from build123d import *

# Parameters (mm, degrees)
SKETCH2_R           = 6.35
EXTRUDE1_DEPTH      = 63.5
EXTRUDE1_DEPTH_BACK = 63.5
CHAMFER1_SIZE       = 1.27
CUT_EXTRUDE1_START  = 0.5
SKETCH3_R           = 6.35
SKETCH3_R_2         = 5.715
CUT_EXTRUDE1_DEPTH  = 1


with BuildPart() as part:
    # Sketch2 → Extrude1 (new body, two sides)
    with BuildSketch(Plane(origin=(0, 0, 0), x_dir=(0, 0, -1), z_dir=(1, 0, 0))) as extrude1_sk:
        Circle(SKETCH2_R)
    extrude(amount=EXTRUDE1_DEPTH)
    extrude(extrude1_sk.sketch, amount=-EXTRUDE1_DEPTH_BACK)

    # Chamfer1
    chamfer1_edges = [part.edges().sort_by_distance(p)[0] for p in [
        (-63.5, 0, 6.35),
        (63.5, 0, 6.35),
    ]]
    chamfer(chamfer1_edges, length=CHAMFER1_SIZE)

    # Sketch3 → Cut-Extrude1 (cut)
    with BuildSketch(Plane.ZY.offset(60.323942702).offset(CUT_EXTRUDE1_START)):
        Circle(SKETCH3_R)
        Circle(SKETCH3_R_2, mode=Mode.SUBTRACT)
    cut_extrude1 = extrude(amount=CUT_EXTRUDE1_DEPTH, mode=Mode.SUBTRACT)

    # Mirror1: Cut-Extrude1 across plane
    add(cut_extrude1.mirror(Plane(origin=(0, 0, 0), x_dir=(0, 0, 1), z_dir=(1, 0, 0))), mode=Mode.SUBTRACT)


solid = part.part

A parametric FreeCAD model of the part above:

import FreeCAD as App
import Part
import Sketcher

V = App.Vector
Q = App.Units.Quantity


def edges_at(feature, points):
    """Names of the edges that pass closest to the given points."""
    edges = feature.Shape.Edges
    near = lambda p: min(range(len(edges)), key=lambda i: edges[i].distToShape(Part.Vertex(*p))[0])
    return sorted({f"Edge{near(p) + 1}" for p in points})

doc = App.newDocument("Part")
params = doc.addObject("Spreadsheet::Sheet", "Params")
for row, (alias, value) in enumerate([
    ("sketch1_diameter", "0.5 in"),
    ("pad1_length", "2.5 in"),
    ("pad1_length2", "2.5 in"),
    ("chamfer_size", "0.05 in"),
    ("sketch2_diameter", "0.5 in"),
    ("sketch2_diameter2", "0.45 in"),
    ("pocket1_length", "1 mm"),
], start=1):
    params.set(f"A{row}", alias)
    params.set(f"B{row}", "=" + value)
    params.setAlias(f"B{row}", alias)

body = doc.addObject("PartDesign::Body", "Body")

# Sketch on YZ plane
sketch1 = doc.addObject("Sketcher::SketchObject", "Sketch")
body.addObject(sketch1)
sketch1.AttachmentSupport = (doc.YZ_Plane, [""])
sketch1.MapMode = "FlatFace"
sketch1.addGeometry(Part.Circle(V(0, 0, 0), V(0, 0, 1), 6), False)
sketch1.addConstraint([
    Sketcher.Constraint("Coincident", 0, 3, -1, 1),
    Sketcher.Constraint("Diameter", 0, Q("0.5 in")),
])
sketch1.setExpression("Constraints[1]", "Params.sketch1_diameter")
pad1 = doc.addObject("PartDesign::Pad", "Pad")
body.addObject(pad1)
pad1.Profile = sketch1
pad1.Type = "TwoLengths"
pad1.setExpression("Length", "Params.pad1_length")
pad1.setExpression("Length2", "Params.pad1_length2")
doc.recompute()

chamfer = doc.addObject("PartDesign::Chamfer", "Chamfer")
body.addObject(chamfer)
chamfer.Base = (pad1, edges_at(pad1, [(-63.5, 0, 6.35), (63.5, 0, 6.35)]))
chamfer.setExpression("Size", "Params.chamfer_size")

# Sketch on YZ plane
sketch2 = doc.addObject("Sketcher::SketchObject", "Sketch001")
body.addObject(sketch2)
sketch2.AttachmentSupport = (doc.YZ_Plane, [""])
sketch2.MapMode = "FlatFace"
sketch2.AttachmentOffset = App.Placement(V(0, 0, -60.823943), App.Rotation())
sketch2.addGeometry([
    Part.Circle(V(0, 0, 0), V(0, 0, 1), 6),
    Part.Circle(V(0, 0, 0), V(0, 0, 1), 6),
], False)
sketch2.addConstraint([
    Sketcher.Constraint("Coincident", 0, 3, -1, 1),
    Sketcher.Constraint("Coincident", 1, 3, -1, 1),
    Sketcher.Constraint("Diameter", 0, Q("0.5 in")),
    Sketcher.Constraint("Diameter", 1, Q("0.45 in")),
])
sketch2.setExpression("Constraints[2]", "Params.sketch2_diameter")
sketch2.setExpression("Constraints[3]", "Params.sketch2_diameter2")
pocket1 = doc.addObject("PartDesign::Pocket", "Pocket")
body.addObject(pocket1)
pocket1.Profile = sketch2
pocket1.setExpression("Length", "Params.pocket1_length")
doc.recompute()

mirrored = doc.addObject("PartDesign::Mirrored", "Mirrored")
body.addObject(mirrored)
mirrored.Originals = [pocket1]
mirrored.MirrorPlane = (doc.YZ_Plane, [""])
body.Tip = mirrored

doc.recompute()
